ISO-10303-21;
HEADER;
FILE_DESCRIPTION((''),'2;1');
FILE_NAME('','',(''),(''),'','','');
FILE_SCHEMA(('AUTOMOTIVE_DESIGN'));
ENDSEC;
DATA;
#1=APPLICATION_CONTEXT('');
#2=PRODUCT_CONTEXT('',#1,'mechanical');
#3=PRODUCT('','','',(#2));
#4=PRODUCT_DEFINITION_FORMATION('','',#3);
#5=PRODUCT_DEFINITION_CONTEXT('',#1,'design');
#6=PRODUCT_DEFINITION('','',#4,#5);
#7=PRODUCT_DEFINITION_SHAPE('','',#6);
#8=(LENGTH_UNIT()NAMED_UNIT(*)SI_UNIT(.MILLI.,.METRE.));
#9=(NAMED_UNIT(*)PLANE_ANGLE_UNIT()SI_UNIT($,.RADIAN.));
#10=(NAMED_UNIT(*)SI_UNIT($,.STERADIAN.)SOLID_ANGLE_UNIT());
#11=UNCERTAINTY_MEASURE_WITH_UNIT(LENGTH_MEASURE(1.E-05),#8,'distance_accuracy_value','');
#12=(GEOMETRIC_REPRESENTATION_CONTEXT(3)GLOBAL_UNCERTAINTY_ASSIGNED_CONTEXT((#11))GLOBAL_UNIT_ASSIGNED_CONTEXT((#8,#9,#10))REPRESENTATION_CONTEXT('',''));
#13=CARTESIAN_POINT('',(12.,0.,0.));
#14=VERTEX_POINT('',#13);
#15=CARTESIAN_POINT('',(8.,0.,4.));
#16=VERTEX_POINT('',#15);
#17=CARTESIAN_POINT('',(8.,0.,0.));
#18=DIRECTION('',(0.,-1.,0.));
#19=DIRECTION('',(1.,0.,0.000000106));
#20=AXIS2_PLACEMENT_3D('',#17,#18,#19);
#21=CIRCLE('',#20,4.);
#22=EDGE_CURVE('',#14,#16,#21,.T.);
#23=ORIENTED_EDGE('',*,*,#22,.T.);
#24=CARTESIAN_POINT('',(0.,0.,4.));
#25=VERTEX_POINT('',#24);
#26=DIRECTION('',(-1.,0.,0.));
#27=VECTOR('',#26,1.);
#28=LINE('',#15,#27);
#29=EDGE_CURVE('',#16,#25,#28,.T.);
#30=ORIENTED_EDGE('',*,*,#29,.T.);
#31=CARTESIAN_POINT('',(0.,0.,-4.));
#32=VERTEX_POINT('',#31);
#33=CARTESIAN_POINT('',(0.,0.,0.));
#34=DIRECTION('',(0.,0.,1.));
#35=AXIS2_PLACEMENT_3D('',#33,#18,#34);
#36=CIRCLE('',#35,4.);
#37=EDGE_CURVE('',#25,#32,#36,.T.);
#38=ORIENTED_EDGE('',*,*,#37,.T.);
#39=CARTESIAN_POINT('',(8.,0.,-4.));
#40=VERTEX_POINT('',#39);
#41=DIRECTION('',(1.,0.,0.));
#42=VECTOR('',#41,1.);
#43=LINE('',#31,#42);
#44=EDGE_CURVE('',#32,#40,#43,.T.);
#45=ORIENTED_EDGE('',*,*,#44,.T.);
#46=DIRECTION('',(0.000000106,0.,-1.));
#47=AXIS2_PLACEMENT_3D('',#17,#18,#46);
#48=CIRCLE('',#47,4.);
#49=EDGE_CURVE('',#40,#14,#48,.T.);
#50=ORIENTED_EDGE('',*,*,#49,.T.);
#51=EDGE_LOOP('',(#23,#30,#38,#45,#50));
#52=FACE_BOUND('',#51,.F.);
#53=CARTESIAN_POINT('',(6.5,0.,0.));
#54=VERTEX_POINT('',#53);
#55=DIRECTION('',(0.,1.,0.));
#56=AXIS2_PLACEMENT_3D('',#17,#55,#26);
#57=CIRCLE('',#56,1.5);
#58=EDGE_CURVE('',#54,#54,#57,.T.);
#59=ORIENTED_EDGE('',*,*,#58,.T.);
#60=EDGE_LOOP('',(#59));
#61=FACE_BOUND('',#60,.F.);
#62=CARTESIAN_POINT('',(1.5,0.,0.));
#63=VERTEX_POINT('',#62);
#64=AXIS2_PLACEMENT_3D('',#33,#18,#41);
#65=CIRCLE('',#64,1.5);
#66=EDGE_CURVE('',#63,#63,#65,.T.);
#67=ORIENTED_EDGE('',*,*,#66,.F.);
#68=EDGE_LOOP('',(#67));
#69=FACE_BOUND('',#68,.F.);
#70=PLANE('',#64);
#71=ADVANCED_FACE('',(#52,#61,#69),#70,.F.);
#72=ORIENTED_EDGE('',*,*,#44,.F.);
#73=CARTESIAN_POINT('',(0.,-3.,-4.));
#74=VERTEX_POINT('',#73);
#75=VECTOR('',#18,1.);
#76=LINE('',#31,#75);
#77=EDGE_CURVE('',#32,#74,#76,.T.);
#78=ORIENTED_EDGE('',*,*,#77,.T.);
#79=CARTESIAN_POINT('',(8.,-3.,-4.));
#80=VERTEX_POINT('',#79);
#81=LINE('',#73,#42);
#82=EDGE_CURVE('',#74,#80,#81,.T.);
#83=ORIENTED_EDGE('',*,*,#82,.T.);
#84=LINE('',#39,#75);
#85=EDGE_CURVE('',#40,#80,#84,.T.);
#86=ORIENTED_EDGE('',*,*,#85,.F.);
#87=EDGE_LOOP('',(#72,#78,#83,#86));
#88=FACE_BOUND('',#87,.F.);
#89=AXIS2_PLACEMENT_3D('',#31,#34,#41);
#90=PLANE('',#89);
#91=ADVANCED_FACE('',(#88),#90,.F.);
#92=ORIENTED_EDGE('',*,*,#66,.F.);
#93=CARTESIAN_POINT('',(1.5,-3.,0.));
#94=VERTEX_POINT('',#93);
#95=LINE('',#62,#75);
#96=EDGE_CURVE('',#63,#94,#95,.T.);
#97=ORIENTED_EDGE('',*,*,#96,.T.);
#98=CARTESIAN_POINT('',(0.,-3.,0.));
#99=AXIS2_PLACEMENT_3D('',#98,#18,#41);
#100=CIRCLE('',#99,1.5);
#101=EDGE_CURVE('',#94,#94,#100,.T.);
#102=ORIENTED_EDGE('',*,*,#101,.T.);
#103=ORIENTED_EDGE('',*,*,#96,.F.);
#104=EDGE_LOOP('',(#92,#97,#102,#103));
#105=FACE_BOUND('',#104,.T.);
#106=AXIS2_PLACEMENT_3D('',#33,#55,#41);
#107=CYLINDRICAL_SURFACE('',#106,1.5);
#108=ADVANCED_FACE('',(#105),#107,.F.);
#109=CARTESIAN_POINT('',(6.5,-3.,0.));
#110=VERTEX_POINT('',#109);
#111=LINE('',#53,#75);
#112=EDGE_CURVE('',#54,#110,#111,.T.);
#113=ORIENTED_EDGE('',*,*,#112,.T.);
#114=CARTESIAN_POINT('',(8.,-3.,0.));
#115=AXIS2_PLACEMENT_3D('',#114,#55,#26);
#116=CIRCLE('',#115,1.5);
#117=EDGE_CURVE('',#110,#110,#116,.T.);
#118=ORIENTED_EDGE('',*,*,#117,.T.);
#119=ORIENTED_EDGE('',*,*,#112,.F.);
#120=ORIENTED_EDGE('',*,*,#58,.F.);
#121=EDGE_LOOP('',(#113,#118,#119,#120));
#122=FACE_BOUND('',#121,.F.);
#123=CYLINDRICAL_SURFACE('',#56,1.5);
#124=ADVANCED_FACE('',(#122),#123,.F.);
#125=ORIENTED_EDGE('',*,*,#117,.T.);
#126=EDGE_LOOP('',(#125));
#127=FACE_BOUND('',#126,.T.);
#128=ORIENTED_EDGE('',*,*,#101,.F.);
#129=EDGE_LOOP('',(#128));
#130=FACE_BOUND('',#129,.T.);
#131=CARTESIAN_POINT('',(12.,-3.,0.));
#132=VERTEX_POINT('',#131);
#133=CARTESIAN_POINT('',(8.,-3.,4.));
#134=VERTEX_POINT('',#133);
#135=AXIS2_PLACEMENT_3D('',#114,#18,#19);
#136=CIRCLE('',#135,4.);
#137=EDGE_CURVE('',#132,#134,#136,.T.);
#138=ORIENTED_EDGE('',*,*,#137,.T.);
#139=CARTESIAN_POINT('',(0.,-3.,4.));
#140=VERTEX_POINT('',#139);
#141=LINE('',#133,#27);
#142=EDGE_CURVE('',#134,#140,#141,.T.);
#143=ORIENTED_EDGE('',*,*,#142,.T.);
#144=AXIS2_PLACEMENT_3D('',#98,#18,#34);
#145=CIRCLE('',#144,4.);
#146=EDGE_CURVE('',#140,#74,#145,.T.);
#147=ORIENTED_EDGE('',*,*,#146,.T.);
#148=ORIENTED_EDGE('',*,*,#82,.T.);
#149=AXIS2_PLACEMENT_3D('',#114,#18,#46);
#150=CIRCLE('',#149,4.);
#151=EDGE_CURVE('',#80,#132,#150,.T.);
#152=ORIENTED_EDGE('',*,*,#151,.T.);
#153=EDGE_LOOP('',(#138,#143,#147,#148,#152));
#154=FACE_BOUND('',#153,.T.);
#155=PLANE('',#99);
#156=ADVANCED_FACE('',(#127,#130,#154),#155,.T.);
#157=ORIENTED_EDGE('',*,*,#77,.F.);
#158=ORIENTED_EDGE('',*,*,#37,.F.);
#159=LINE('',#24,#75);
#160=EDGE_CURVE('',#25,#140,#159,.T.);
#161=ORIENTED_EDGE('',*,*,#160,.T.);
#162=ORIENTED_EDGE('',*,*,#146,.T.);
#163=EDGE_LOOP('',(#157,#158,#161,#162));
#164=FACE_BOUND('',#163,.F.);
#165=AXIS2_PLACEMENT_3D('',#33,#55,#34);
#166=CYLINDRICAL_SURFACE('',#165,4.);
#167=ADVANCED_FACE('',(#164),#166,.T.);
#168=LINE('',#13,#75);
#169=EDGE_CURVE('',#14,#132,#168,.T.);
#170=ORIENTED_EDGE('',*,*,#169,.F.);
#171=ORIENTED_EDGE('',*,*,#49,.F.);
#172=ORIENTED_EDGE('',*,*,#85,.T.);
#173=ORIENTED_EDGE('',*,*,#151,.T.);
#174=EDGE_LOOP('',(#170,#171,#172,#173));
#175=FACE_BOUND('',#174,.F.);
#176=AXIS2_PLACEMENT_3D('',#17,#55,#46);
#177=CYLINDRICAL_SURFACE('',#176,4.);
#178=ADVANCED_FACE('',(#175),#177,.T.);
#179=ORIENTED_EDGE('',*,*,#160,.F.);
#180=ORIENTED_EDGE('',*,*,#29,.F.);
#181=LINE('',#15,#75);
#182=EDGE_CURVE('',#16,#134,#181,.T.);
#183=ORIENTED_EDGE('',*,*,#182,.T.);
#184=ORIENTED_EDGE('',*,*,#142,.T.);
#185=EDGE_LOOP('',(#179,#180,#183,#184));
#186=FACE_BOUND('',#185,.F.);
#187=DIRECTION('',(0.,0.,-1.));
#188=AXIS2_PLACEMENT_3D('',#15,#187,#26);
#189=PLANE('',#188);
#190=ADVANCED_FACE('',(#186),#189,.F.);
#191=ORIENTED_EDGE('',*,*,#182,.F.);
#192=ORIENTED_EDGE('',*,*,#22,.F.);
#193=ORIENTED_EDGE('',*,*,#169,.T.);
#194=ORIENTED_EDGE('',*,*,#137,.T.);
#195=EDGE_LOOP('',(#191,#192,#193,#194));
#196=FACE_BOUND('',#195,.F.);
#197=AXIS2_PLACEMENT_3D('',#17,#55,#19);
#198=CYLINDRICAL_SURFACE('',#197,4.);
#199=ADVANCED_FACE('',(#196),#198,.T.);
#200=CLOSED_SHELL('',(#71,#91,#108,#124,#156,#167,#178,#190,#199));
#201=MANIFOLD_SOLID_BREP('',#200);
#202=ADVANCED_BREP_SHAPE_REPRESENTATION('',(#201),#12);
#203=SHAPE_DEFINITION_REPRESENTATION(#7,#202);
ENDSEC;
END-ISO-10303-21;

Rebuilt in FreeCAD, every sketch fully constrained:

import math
import FreeCAD as App
import Part
import Sketcher
Q = App.Units.Quantity

doc = App.newDocument("Part")
params = doc.addObject("Spreadsheet::Sheet", "Params")
for row, (alias, value) in enumerate([
    ("sketch1_diameter", "3 mm"),
    ("sketch1_radius", "4 mm"),
    ("sketch1_width", "8 mm"),
    ("pad1_length", "3 mm"),
], start=1):
    params.set(f"A{row}", alias)
    params.set(f"B{row}", "=" + value)
    params.setAlias(f"B{row}", alias)

body = doc.addObject("PartDesign::Body", "Body")

# Sketch on XZ plane
sketch1 = body.newObject("Sketcher::SketchObject", "Sketch")
sketch1.AttachmentSupport = (doc.getObject("XZ_Plane"), [""])
sketch1.MapMode = "FlatFace"
sketch1.addGeometry(Part.ArcOfCircle(Part.Circle(App.Vector(0, 0, 0), App.Vector(0, 0, 1), 4), math.radians(90), math.radians(270)), False)
sketch1.addGeometry(Part.LineSegment(App.Vector(0, -4, 0), App.Vector(8, -4, 0)), False)
sketch1.addGeometry(Part.ArcOfCircle(Part.Circle(App.Vector(8, 0, 0), App.Vector(0, 0, 1), 4), math.radians(-90), math.radians(0)), False)
sketch1.addGeometry(Part.ArcOfCircle(Part.Circle(App.Vector(8, 0, 0), App.Vector(0, 0, 1), 4), math.radians(0), math.radians(90)), False)
sketch1.addGeometry(Part.LineSegment(App.Vector(8, 4, 0), App.Vector(0, 4, 0)), False)
sketch1.addGeometry(Part.Circle(App.Vector(0, 0, 0), App.Vector(0, 0, 1), 1.5), False)
sketch1.addGeometry(Part.Circle(App.Vector(8, 0, 0), App.Vector(0, 0, 1), 1.5), False)
sketch1.addConstraint(Sketcher.Constraint("Tangent", 0, 2, 1, 1))
sketch1.addConstraint(Sketcher.Constraint("Tangent", 1, 2, 2, 1))
sketch1.addConstraint(Sketcher.Constraint("Tangent", 2, 2, 3, 1))
sketch1.addConstraint(Sketcher.Constraint("Tangent", 3, 2, 4, 1))
sketch1.addConstraint(Sketcher.Constraint("Tangent", 4, 2, 0, 1))
sketch1.addConstraint(Sketcher.Constraint("Horizontal", 1))
sketch1.addConstraint(Sketcher.Constraint("Horizontal", 4))
sketch1.addConstraint(Sketcher.Constraint("Coincident", 0, 3, -1, 1))
sketch1.addConstraint(Sketcher.Constraint("Coincident", 5, 3, -1, 1))
sketch1.addConstraint(Sketcher.Constraint("Coincident", 6, 3, 2, 3))
sketch1.addConstraint(Sketcher.Constraint("Equal", 0, 2))
sketch1.addConstraint(Sketcher.Constraint("Equal", 5, 6))
sketch1.addConstraint(Sketcher.Constraint("PointOnObject", 2, 2, -1))
sketch1.addConstraint(Sketcher.Constraint("Diameter", 5, Q("3 mm")))
sketch1.addConstraint(Sketcher.Constraint("Radius", 0, Q("4 mm")))
sketch1.addConstraint(Sketcher.Constraint("DistanceX", 1, 1, 1, 2, Q("8 mm")))
sketch1.setExpression("Constraints[13]", "Params.sketch1_diameter")
sketch1.setExpression("Constraints[14]", "Params.sketch1_radius")
sketch1.setExpression("Constraints[15]", "Params.sketch1_width")
pad1 = body.newObject("PartDesign::Pad", "Pad")
pad1.Profile = sketch1
pad1.setExpression("Length", "Params.pad1_length")

doc.recompute()
